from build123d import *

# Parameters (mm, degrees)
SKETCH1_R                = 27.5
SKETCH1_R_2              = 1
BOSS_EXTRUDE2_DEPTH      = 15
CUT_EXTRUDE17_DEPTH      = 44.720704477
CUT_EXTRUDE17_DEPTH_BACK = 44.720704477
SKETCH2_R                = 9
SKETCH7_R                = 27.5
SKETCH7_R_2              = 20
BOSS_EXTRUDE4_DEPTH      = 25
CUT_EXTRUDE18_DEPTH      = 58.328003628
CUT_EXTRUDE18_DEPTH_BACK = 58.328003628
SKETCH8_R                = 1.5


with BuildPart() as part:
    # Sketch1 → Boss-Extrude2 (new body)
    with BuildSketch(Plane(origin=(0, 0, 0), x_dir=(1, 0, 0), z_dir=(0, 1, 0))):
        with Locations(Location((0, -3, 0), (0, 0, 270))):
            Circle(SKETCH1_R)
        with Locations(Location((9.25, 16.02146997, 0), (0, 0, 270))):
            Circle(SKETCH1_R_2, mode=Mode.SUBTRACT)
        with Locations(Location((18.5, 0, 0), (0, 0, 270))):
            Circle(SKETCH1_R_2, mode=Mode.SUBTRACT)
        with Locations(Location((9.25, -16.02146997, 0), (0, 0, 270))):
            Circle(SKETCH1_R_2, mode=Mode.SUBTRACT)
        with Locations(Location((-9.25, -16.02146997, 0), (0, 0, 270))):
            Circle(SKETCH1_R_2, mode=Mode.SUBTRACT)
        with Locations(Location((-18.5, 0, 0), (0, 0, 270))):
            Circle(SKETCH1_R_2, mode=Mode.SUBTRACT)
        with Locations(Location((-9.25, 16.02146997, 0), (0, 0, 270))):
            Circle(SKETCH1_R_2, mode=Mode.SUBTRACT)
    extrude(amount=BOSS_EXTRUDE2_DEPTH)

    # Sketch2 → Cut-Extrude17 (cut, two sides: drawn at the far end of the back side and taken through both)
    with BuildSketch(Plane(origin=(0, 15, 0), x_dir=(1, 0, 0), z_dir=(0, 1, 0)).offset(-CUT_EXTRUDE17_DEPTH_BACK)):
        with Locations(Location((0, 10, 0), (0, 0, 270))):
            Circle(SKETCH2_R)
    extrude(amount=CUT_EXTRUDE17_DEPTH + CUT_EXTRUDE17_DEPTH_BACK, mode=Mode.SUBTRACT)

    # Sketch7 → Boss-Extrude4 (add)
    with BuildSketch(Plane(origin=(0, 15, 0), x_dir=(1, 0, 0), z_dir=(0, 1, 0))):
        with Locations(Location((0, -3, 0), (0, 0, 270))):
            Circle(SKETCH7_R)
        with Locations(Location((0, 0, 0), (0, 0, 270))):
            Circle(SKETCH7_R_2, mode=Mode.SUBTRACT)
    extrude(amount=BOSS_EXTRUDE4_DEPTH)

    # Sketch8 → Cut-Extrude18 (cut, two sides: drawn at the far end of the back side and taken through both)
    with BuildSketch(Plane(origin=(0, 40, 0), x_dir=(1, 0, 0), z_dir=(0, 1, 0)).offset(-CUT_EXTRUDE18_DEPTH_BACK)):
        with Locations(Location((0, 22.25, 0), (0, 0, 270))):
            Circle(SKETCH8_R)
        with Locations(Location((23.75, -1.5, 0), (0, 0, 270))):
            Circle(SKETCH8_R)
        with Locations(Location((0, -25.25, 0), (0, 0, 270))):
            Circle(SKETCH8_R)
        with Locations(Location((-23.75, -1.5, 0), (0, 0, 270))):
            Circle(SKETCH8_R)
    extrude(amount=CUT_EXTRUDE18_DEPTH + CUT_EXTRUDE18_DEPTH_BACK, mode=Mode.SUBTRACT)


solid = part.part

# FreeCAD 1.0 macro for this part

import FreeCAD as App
import Part
import Sketcher
Q = App.Units.Quantity

doc = App.newDocument("Part")
params = doc.addObject("Spreadsheet::Sheet", "Params")
for row, (alias, value) in enumerate([
    ("sketch1_diameter", "55 mm"),
    ("sketch1_diameter2", "2 mm"),
    ("pad1_length", "15 mm"),
    ("sketch2_diameter", "18 mm"),
    ("sketch3_diameter", "55 mm"),
    ("sketch3_diameter2", "40 mm"),
    ("pad2_length", "25 mm"),
    ("sketch4_diameter", "3 mm"),
], start=1):
    params.set(f"A{row}", alias)
    params.set(f"B{row}", "=" + value)
    params.setAlias(f"B{row}", alias)

body = doc.addObject("PartDesign::Body", "Body")

sketch1 = doc.addObject("Sketcher::SketchObject", "Sketch")
body.addObject(sketch1)
sketch1.AttachmentSupport = (doc.XZ_Plane, [""])
sketch1.MapMode = "FlatFace"
sketch1.addGeometry(Part.Circle(App.Vector(0, 3, 0), App.Vector(0, 0, 1), 27.5), False)
sketch1.addGeometry(Part.Circle(App.Vector(-9.2, -16, 0), App.Vector(0, 0, 1), 1), False)
sketch1.addGeometry(Part.Circle(App.Vector(-18.5, 0, 0), App.Vector(0, 0, 1), 1), False)
sketch1.addGeometry(Part.Circle(App.Vector(-9.2, 16, 0), App.Vector(0, 0, 1), 1), False)
sketch1.addGeometry(Part.Circle(App.Vector(9.2, -16, 0), App.Vector(0, 0, 1), 1), False)
sketch1.addGeometry(Part.Circle(App.Vector(18.5, 0, 0), App.Vector(0, 0, 1), 1), False)
sketch1.addGeometry(Part.Circle(App.Vector(9.2, 16, 0), App.Vector(0, 0, 1), 1), False)
sketch1.addConstraint(Sketcher.Constraint("Equal", 1, 2))
sketch1.addConstraint(Sketcher.Constraint("Equal", 2, 3))
sketch1.addConstraint(Sketcher.Constraint("Equal", 3, 4))
sketch1.addConstraint(Sketcher.Constraint("Equal", 4, 5))
sketch1.addConstraint(Sketcher.Constraint("Equal", 5, 6))
sketch1.addConstraint(Sketcher.Constraint("Symmetric", 3, 3, 4, 3, -1, 1))
sketch1.addConstraint(Sketcher.Constraint("Symmetric", 2, 3, 5, 3, -1, 1))
sketch1.addConstraint(Sketcher.Constraint("Symmetric", 1, 3, 6, 3, -1, 1))
sketch1.addConstraint(Sketcher.Constraint("Symmetric", 1, 3, 4, 3, -2))
sketch1.addConstraint(Sketcher.Constraint("PointOnObject", 0, 3, -2))
sketch1.addConstraint(Sketcher.Constraint("PointOnObject", 2, 3, -1))
sketch1.addConstraint(Sketcher.Constraint("Diameter", 0, Q("55 mm")))
sketch1.addConstraint(Sketcher.Constraint("Diameter", 1, Q("2 mm")))
sketch1.addConstraint(Sketcher.Constraint("DistanceY", -1, 1, 0, 3, Q("3 mm")))
sketch1.addConstraint(Sketcher.Constraint("DistanceX", 2, 3, 5, 3, Q("37 mm")))
sketch1.addConstraint(Sketcher.Constraint("DistanceX", 1, 3, 4, 3, Q("18.5 mm")))
sketch1.addConstraint(Sketcher.Constraint("DistanceY", 1, 3, -1, 1, Q("16.02147 mm")))
sketch1.setExpression("Constraints[11]", "Params.sketch1_diameter")
sketch1.setExpression("Constraints[12]", "Params.sketch1_diameter2")
pad1 = doc.addObject("PartDesign::Pad", "Pad")
body.addObject(pad1)
pad1.Profile = sketch1
pad1.setExpression("Length", "Params.pad1_length")
pad1.Reversed = True

sketch2 = doc.addObject("Sketcher::SketchObject", "Sketch001")
body.addObject(sketch2)
sketch2.AttachmentSupport = (doc.XZ_Plane, [""])
sketch2.MapMode = "FlatFace"
sketch2.AttachmentOffset = App.Placement(App.Vector(0, 0, -15), App.Rotation())
sketch2.addGeometry(Part.Circle(App.Vector(0, -10, 0), App.Vector(0, 0, 1), 9), False)
sketch2.addConstraint(Sketcher.Constraint("PointOnObject", 0, 3, -2))
sketch2.addConstraint(Sketcher.Constraint("Diameter", 0, Q("18 mm")))
sketch2.addConstraint(Sketcher.Constraint("DistanceY", 0, 3, -1, 1, Q("10 mm")))
sketch2.setExpression("Constraints[1]", "Params.sketch2_diameter")
pocket1 = doc.addObject("PartDesign::Pocket", "Pocket")
body.addObject(pocket1)
pocket1.Profile = sketch2
pocket1.Type = "ThroughAll"
pocket1.Midplane = True

sketch3 = doc.addObject("Sketcher::SketchObject", "Sketch002")
body.addObject(sketch3)
sketch3.AttachmentSupport = (doc.XZ_Plane, [""])
sketch3.MapMode = "FlatFace"
sketch3.AttachmentOffset = App.Placement(App.Vector(0, 0, -15), App.Rotation())
sketch3.addGeometry(Part.Circle(App.Vector(0, 3, 0), App.Vector(0, 0, 1), 28), False)
sketch3.addGeometry(Part.Circle(App.Vector(0, 0, 0), App.Vector(0, 0, 1), 20), False)
sketch3.addConstraint(Sketcher.Constraint("Coincident", 1, 3, -1, 1))
sketch3.addConstraint(Sketcher.Constraint("PointOnObject", 0, 3, -2))
sketch3.addConstraint(Sketcher.Constraint("Diameter", 0, Q("55 mm")))
sketch3.addConstraint(Sketcher.Constraint("Diameter", 1, Q("40 mm")))
sketch3.addConstraint(Sketcher.Constraint("DistanceY", -1, 1, 0, 3, Q("3 mm")))
sketch3.setExpression("Constraints[2]", "Params.sketch3_diameter")
sketch3.setExpression("Constraints[3]", "Params.sketch3_diameter2")
pad2 = doc.addObject("PartDesign::Pad", "Pad001")
body.addObject(pad2)
pad2.Profile = sketch3
pad2.setExpression("Length", "Params.pad2_length")
pad2.Reversed = True

sketch4 = doc.addObject("Sketcher::SketchObject", "Sketch003")
body.addObject(sketch4)
sketch4.AttachmentSupport = (doc.XZ_Plane, [""])
sketch4.MapMode = "FlatFace"
sketch4.AttachmentOffset = App.Placement(App.Vector(0, 0, -40), App.Rotation())
sketch4.addGeometry(Part.Circle(App.Vector(0, -22.2, 0), App.Vector(0, 0, 1), 1.5), False)
sketch4.addGeometry(Part.Circle(App.Vector(23.8, 1.5, 0), App.Vector(0, 0, 1), 1.5), False)
sketch4.addGeometry(Part.Circle(App.Vector(0, 25.2, 0), App.Vector(0, 0, 1), 1.5), False)
sketch4.addGeometry(Part.Circle(App.Vector(-23.8, 1.5, 0), App.Vector(0, 0, 1), 1.5), False)
sketch4.addConstraint(Sketcher.Constraint("Equal", 0, 1))
sketch4.addConstraint(Sketcher.Constraint("Equal", 1, 2))
sketch4.addConstraint(Sketcher.Constraint("Equal", 2, 3))
sketch4.addConstraint(Sketcher.Constraint("Symmetric", 1, 3, 3, 3, -2))
sketch4.addConstraint(Sketcher.Constraint("PointOnObject", 0, 3, -2))
sketch4.addConstraint(Sketcher.Constraint("PointOnObject", 2, 3, -2))
sketch4.addConstraint(Sketcher.Constraint("Diameter", 0, Q("3 mm")))
sketch4.addConstraint(Sketcher.Constraint("DistanceY", -1, 1, 1, 3, Q("1.5 mm")))
sketch4.addConstraint(Sketcher.Constraint("DistanceY", 0, 3, 2, 3, Q("47.5 mm")))
sketch4.addConstraint(Sketcher.Constraint("DistanceX", 3, 3, 1, 3, Q("47.5 mm")))
sketch4.addConstraint(Sketcher.Constraint("DistanceY", 0, 3, -1, 1, Q("22.25 mm")))
sketch4.setExpression("Constraints[6]", "Params.sketch4_diameter")
pocket2 = doc.addObject("PartDesign::Pocket", "Pocket001")
body.addObject(pocket2)
pocket2.Profile = sketch4
pocket2.Type = "ThroughAll"
pocket2.Midplane = True

doc.recompute()
